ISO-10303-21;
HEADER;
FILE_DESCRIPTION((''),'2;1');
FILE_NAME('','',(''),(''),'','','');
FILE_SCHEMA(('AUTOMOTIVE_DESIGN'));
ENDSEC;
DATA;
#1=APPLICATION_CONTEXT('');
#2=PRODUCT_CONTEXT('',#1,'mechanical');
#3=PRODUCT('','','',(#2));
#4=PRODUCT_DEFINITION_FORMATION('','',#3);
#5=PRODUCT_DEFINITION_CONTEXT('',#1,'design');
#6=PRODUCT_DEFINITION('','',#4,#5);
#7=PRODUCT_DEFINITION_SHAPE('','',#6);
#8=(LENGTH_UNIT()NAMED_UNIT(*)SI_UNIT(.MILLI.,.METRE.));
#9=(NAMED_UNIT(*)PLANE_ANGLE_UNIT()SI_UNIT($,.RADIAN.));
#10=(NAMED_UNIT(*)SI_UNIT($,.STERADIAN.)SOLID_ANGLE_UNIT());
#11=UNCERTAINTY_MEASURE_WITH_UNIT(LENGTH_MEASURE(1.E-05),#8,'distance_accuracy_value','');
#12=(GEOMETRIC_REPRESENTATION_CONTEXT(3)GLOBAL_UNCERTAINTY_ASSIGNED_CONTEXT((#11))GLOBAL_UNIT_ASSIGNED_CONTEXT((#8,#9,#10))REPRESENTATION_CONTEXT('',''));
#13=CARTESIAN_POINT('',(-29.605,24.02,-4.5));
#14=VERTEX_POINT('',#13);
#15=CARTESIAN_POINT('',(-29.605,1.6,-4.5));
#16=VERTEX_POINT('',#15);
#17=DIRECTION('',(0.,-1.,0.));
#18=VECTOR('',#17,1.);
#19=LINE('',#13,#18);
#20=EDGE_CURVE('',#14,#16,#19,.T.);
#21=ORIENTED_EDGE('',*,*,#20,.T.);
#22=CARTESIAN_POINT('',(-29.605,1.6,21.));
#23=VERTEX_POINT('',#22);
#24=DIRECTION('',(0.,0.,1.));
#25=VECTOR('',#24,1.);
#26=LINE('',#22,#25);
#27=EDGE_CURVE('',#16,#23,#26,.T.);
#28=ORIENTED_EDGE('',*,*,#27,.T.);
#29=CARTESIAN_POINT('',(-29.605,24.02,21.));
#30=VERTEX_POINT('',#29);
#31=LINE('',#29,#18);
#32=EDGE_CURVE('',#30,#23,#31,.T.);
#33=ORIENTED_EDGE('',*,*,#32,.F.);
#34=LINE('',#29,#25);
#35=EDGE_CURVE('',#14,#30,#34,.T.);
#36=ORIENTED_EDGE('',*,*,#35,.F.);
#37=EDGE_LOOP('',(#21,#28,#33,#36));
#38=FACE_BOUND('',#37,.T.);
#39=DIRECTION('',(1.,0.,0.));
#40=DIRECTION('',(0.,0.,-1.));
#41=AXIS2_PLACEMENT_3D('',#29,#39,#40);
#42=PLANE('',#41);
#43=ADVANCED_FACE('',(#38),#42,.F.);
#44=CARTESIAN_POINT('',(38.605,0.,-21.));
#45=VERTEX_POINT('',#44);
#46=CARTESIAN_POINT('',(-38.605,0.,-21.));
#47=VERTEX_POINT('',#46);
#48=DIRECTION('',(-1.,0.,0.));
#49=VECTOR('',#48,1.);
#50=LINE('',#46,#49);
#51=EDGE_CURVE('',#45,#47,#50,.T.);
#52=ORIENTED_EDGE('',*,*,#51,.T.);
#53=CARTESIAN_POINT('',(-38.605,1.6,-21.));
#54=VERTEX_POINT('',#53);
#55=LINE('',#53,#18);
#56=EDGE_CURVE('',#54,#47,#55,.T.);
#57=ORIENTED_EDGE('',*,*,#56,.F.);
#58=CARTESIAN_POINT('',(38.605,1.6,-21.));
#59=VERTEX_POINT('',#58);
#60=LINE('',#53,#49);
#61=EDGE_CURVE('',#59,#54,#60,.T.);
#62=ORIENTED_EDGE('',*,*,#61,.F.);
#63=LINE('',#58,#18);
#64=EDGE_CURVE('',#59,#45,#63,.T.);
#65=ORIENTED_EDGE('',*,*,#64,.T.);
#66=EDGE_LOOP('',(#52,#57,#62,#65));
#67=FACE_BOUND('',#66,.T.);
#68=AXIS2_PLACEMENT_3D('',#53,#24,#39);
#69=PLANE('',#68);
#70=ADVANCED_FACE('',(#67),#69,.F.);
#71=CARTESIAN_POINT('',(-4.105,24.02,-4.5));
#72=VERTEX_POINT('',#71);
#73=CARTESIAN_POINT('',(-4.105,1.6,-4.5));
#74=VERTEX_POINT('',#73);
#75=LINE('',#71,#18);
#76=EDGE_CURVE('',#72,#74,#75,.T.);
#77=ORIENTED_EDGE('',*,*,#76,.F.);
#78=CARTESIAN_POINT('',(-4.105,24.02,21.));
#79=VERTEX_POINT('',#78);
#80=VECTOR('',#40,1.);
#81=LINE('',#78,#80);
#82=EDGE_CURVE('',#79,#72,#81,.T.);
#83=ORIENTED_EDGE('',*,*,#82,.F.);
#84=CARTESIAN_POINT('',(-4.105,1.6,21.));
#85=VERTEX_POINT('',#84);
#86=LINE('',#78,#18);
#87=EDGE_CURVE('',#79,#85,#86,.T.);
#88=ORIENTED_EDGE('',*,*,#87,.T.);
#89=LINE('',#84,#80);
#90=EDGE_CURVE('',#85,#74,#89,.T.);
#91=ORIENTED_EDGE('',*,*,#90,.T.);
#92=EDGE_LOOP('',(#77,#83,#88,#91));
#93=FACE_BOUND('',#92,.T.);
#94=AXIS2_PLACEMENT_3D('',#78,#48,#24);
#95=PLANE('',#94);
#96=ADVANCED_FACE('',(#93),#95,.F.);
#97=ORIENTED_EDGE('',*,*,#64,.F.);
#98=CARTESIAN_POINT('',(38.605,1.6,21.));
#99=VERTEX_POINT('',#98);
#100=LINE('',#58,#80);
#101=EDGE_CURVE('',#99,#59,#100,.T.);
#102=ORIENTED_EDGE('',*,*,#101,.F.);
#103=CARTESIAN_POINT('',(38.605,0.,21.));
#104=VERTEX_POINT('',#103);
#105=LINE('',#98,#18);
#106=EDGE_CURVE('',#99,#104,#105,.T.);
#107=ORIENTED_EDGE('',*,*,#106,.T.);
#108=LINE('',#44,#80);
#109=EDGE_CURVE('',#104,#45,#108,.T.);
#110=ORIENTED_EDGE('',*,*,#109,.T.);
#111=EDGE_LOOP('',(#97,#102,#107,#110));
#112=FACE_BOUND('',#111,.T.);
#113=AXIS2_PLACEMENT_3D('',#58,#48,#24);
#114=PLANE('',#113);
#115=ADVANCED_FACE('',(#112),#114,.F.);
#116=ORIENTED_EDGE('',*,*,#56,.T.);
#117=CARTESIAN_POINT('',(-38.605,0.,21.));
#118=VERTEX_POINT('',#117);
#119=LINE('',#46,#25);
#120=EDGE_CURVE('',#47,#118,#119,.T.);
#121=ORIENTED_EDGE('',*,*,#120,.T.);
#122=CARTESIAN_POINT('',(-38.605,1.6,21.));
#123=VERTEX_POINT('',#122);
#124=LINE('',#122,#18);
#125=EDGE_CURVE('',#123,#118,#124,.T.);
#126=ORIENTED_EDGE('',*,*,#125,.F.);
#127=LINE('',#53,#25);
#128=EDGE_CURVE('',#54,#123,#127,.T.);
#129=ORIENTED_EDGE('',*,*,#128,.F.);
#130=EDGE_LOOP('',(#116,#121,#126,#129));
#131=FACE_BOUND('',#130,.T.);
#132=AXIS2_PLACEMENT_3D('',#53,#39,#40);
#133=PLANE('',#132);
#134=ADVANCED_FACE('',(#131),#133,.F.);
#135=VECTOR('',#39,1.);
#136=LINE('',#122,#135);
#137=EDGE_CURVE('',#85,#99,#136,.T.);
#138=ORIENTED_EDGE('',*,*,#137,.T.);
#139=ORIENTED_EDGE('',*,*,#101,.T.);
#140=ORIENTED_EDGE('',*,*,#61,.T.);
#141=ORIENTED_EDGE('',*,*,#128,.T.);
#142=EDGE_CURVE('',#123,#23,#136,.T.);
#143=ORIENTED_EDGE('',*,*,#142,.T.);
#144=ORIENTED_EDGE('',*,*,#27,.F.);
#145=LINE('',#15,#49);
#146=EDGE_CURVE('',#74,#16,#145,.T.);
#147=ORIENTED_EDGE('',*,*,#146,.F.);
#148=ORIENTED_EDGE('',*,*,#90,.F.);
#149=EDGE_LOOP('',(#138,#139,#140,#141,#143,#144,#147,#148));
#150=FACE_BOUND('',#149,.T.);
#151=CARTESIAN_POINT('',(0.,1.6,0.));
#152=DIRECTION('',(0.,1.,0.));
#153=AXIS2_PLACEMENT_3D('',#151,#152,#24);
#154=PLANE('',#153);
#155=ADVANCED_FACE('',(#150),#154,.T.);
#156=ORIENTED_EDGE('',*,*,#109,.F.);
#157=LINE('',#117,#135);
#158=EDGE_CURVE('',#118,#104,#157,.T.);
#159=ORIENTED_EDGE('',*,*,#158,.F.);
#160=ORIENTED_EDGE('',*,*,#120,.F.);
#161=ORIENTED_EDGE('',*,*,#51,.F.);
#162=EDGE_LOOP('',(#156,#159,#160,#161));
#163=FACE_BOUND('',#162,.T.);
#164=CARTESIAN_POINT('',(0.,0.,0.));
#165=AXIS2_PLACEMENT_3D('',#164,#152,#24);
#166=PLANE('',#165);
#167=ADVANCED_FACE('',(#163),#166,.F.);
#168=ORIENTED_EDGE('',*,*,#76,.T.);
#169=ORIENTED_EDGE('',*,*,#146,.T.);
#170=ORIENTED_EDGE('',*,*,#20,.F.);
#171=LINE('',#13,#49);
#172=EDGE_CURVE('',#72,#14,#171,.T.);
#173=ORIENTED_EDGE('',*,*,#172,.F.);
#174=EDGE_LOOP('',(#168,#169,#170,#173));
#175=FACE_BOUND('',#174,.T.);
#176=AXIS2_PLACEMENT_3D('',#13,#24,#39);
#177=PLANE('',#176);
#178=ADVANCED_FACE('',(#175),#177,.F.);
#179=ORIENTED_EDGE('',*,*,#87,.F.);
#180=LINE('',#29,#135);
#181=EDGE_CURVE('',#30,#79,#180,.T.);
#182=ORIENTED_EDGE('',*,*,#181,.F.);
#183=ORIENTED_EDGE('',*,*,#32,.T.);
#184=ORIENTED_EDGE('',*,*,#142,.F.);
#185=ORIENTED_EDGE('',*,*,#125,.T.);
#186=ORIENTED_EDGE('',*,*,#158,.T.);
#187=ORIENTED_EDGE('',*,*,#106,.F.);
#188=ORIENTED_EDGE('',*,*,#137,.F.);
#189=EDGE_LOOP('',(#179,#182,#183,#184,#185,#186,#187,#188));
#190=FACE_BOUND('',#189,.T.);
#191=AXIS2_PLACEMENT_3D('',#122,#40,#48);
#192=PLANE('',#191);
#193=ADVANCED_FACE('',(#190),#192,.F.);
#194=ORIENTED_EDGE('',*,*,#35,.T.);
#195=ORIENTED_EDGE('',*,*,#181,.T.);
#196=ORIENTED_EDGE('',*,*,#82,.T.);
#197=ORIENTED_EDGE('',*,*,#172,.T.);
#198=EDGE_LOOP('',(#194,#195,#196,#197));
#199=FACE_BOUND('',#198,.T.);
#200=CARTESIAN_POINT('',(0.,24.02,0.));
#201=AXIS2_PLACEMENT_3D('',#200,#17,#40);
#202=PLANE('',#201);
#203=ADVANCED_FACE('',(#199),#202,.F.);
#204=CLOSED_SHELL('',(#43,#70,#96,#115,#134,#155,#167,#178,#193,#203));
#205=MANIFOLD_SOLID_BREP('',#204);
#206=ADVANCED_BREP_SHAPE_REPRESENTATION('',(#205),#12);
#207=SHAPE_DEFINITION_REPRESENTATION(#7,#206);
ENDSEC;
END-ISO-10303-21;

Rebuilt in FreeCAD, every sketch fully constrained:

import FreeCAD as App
import Part
import Sketcher
from FreeCAD import Vector
Q = App.Units.Quantity


def add_polygon(sketch, points):
    """Adds a closed chain of lines whose ends are joined by coincident constraints."""
    first, n = sketch.GeometryCount, len(points)
    for a, b in zip(points, points[1:] + points[:1]):
        sketch.addGeometry(Part.LineSegment(App.Vector(*a, 0), App.Vector(*b, 0)), False)
    for i in range(n):
        sketch.addConstraint(Sketcher.Constraint("Coincident", first + i, 2, first + (i + 1) % n, 1))

doc = App.newDocument("Part")
params = doc.addObject("Spreadsheet::Sheet", "Params")
for row, (alias, value) in enumerate([
    ("sketch1_height", "42 mm"),
    ("sketch1_width", "77.21 mm"),
    ("pad1_length", "1.6 mm"),
    ("sketch2_width", "25.5 mm"),
    ("pad2_length", "22.42 mm"),
], start=1):
    params.set(f"A{row}", alias)
    params.set(f"B{row}", "=" + value)
    params.setAlias(f"B{row}", alias)

body = doc.addObject("PartDesign::Body", "Body")

sketch1 = body.newObject("Sketcher::SketchObject", "Sketch")
sketch1.AttachmentSupport = (doc.getObject("XZ_Plane"), [""])
sketch1.MapMode = "FlatFace"
add_polygon(sketch1, [(-39, -21), (-39, 21), (39, 21), (39, -21)])
sketch1.addConstraint([
    Sketcher.Constraint("Vertical", 0),
    Sketcher.Constraint("Horizontal", 1),
    Sketcher.Constraint("Vertical", 2),
    Sketcher.Constraint("Horizontal", 3),
    Sketcher.Constraint("Symmetric", 0, 2, 2, 2, -1, 1),
    Sketcher.Constraint("DistanceY", 0, 1, 0, 2, Q("42 mm")),
    Sketcher.Constraint("DistanceX", 1, 1, 1, 2, Q("77.21 mm")),
])
sketch1.setExpression("Constraints[9]", "Params.sketch1_height")
sketch1.setExpression("Constraints[10]", "Params.sketch1_width")
pad1 = body.newObject("PartDesign::Pad", "Pad")
pad1.Profile = sketch1
pad1.setExpression("Length", "Params.pad1_length")
pad1.Reversed = True

sketch2 = body.newObject("Sketcher::SketchObject", "Sketch001")
sketch2.AttachmentSupport = (doc.getObject("XZ_Plane"), [""])
sketch2.MapMode = "FlatFace"
sketch2.AttachmentOffset = App.Placement(Vector(0, 0, -1.6), App.Rotation())
add_polygon(sketch2, [(-30, -4), (-30, 21), (-4, 21), (-4, -4)])
sketch2.addConstraint([
    Sketcher.Constraint("Vertical", 0),
    Sketcher.Constraint("Horizontal", 1),
    Sketcher.Constraint("Vertical", 2),
    Sketcher.Constraint("Horizontal", 3),
    Sketcher.Constraint("Equal", 3, 0),
    Sketcher.Constraint("DistanceX", 1, 1, 1, 2, Q("25.5 mm")),
    Sketcher.Constraint("DistanceY", -1, 1, 0, 2, Q("21 mm")),
    Sketcher.Constraint("DistanceX", 0, 2, -1, 1, Q("29.605 mm")),
])
sketch2.setExpression("Constraints[9]", "Params.sketch2_width")
pad2 = body.newObject("PartDesign::Pad", "Pad001")
pad2.Profile = sketch2
pad2.setExpression("Length", "Params.pad2_length")
pad2.Reversed = True

doc.recompute()
